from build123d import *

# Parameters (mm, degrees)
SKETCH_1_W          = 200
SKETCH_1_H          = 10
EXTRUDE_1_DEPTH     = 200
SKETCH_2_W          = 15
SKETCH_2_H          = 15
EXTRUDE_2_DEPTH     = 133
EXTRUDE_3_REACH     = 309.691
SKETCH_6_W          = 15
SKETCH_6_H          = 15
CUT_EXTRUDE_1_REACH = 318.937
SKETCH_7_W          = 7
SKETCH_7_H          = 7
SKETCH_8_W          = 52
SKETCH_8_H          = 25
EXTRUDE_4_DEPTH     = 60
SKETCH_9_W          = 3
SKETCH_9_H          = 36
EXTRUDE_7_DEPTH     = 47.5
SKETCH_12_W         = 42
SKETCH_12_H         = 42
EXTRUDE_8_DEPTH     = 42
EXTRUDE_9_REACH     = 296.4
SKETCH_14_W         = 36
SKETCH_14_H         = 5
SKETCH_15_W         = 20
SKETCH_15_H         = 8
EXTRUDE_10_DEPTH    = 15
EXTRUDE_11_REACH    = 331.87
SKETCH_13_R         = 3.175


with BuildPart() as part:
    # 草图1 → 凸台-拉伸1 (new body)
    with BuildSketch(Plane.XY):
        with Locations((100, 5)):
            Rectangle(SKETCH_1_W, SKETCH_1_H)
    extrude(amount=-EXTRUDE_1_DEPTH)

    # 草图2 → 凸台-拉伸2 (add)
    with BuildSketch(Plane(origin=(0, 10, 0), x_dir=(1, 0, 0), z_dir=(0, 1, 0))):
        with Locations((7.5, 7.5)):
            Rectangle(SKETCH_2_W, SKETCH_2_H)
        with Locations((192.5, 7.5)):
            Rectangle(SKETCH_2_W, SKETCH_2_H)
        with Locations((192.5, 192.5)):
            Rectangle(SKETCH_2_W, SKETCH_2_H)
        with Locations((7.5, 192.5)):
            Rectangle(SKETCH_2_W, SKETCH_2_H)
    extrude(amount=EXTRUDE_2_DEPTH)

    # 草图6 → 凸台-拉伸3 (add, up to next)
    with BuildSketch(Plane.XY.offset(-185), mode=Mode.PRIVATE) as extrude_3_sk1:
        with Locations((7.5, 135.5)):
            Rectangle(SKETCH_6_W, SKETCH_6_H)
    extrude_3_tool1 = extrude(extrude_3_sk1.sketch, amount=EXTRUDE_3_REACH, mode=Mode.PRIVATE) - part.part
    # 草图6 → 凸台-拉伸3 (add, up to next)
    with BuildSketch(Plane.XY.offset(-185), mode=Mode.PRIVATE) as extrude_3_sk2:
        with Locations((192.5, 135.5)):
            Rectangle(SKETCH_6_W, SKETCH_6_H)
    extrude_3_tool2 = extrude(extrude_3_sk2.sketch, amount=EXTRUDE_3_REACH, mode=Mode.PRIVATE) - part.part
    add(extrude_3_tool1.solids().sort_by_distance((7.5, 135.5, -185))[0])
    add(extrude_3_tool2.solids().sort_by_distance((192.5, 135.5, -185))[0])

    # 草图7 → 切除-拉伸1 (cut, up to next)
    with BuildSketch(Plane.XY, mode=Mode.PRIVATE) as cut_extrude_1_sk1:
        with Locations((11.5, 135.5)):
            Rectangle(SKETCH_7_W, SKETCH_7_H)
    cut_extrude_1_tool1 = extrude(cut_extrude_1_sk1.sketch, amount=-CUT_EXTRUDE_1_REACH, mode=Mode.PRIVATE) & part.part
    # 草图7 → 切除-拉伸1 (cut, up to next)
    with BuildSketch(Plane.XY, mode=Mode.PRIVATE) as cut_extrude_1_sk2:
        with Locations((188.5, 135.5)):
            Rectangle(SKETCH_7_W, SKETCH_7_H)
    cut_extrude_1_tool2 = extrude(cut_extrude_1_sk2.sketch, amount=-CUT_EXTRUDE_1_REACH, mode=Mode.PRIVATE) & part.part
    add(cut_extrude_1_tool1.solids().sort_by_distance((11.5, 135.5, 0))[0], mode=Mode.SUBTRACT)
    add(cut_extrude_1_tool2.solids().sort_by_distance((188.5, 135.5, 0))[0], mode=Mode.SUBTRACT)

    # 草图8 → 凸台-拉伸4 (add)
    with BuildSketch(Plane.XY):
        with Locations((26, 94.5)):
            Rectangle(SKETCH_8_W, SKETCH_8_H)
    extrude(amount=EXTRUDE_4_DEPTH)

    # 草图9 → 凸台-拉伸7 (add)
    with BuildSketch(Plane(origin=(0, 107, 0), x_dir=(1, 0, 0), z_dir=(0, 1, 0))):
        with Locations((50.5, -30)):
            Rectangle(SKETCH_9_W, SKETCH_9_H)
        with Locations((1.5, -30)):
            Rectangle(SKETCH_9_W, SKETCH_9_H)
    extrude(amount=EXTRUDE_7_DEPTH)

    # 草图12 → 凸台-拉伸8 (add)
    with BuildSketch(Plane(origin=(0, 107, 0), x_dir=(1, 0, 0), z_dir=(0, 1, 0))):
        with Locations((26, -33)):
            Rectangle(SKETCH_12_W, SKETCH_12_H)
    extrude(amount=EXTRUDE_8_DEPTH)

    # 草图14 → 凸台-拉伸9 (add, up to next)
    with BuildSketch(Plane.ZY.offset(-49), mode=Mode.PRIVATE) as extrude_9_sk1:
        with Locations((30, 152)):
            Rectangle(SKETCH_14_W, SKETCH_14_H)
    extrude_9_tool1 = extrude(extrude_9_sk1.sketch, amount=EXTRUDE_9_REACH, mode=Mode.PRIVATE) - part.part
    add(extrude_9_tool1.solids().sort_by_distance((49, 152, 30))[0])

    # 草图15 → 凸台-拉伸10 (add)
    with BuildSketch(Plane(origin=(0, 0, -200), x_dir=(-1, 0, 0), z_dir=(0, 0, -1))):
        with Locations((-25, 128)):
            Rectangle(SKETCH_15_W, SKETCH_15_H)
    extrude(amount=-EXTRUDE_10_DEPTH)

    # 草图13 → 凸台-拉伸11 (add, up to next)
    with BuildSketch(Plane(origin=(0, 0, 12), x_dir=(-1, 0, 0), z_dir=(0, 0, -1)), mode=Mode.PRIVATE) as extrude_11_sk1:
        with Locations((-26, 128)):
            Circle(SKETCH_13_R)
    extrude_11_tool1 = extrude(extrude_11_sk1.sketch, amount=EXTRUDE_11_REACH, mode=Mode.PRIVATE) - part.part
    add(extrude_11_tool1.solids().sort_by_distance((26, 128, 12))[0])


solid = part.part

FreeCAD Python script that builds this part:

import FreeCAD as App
import Part
import Sketcher
from FreeCAD import Vector

doc = App.newDocument("Part")
params = doc.addObject("Spreadsheet::Sheet", "Params")
for row, (alias, value) in enumerate([
    ("sketch1_width", "200 mm"),
    ("sketch1_height", "10 mm"),
    ("pad1_length", "200 mm"),
    ("sketch2_width", "15 mm"),
    ("pad2_length", "133 mm"),
    ("sketch3_width", "15 mm"),
    ("sketch4_width", "15 mm"),
    ("sketch5_width", "7 mm"),
    ("sketch6_width", "7 mm"),
    ("sketch7_width", "52 mm"),
    ("sketch7_height", "25 mm"),
    ("pad5_length", "60 mm"),
    ("sketch8_width", "3 mm"),
    ("sketch8_height", "36 mm"),
    ("pad6_length", "47.5 mm"),
    ("sketch9_width", "42 mm"),
    ("pad7_length", "42 mm"),
    ("sketch10_width", "5 mm"),
    ("sketch10_height", "36 mm"),
    ("sketch11_width", "20 mm"),
    ("sketch11_height", "8 mm"),
    ("pad9_length", "15 mm"),
    ("sketch12_diameter", "6.35 mm"),
], start=1):
    params.set(f"A{row}", alias)
    params.set(f"B{row}", "=" + value)
    params.setAlias(f"B{row}", alias)

body = doc.addObject("PartDesign::Body", "Body")

# Sketch on XY plane
sketch1 = body.newObject("Sketcher::SketchObject", "Sketch")
sketch1.AttachmentSupport = (doc.getObject("XY_Plane"), [""])
sketch1.MapMode = "FlatFace"
sketch1.addGeometry([
    Part.LineSegment(Vector(0, 10, 0), Vector(0, 0, 0)),
    Part.LineSegment(Vector(0, 0, 0), Vector(200, 0, 0)),
    Part.LineSegment(Vector(200, 0, 0), Vector(200, 10, 0)),
    Part.LineSegment(Vector(200, 10, 0), Vector(0, 10, 0)),
], False)
sketch1.addConstraint([
    Sketcher.Constraint("Coincident", 0, 2, 1, 1),
    Sketcher.Constraint("Coincident", 1, 2, 2, 1),
    Sketcher.Constraint("Coincident", 2, 2, 3, 1),
    Sketcher.Constraint("Coincident", 3, 2, 0, 1),
    Sketcher.Constraint("Vertical", 0),
    Sketcher.Constraint("Horizontal", 1),
    Sketcher.Constraint("Vertical", 2),
    Sketcher.Constraint("Horizontal", 3),
    Sketcher.Constraint("Coincident", 0, 2, -1, 1),
    Sketcher.Constraint("DistanceX", 1, 1, 1, 2, 200.0),
    Sketcher.Constraint("DistanceY", 0, 2, 0, 1, 10.0),
])
sketch1.setExpression("Constraints[9]", "Params.sketch1_width")
sketch1.setExpression("Constraints[10]", "Params.sketch1_height")
pad1 = body.newObject("PartDesign::Pad", "Pad")
pad1.Profile = sketch1
pad1.setExpression("Length", "Params.pad1_length")
pad1.Reversed = True

# Sketch on XZ plane
sketch2 = body.newObject("Sketcher::SketchObject", "Sketch001")
sketch2.AttachmentSupport = (doc.getObject("XZ_Plane"), [""])
sketch2.MapMode = "FlatFace"
sketch2.AttachmentOffset = App.Placement(Vector(0, 0, -10), App.Rotation())
sketch2.addGeometry([
    Part.LineSegment(Vector(0, -15, 0), Vector(0, 0, 0)),  # 0
    Part.LineSegment(Vector(0, 0, 0), Vector(15, 0, 0)),  # 1
    Part.LineSegment(Vector(15, 0, 0), Vector(15, -15, 0)),  # 2
    Part.LineSegment(Vector(15, -15, 0), Vector(0, -15, 0)),  # 3
    Part.LineSegment(Vector(185, -15, 0), Vector(185, 0, 0)),  # 4
    Part.LineSegment(Vector(185, 0, 0), Vector(200, 0, 0)),  # 5
    Part.LineSegment(Vector(200, 0, 0), Vector(200, -15, 0)),  # 6
    Part.LineSegment(Vector(200, -15, 0), Vector(185, -15, 0)),  # 7
    Part.LineSegment(Vector(185, -200, 0), Vector(185, -185, 0)),  # 8
    Part.LineSegment(Vector(185, -185, 0), Vector(200, -185, 0)),  # 9
    Part.LineSegment(Vector(200, -185, 0), Vector(200, -200, 0)),  # 10
    Part.LineSegment(Vector(200, -200, 0), Vector(185, -200, 0)),  # 11
    Part.LineSegment(Vector(0, -200, 0), Vector(0, -185, 0)),  # 12
    Part.LineSegment(Vector(0, -185, 0), Vector(15, -185, 0)),  # 13
    Part.LineSegment(Vector(15, -185, 0), Vector(15, -200, 0)),  # 14
    Part.LineSegment(Vector(15, -200, 0), Vector(0, -200, 0)),  # 15
], False)
sketch2.addConstraint([
    Sketcher.Constraint("Coincident", 0, 2, 1, 1),
    Sketcher.Constraint("Coincident", 1, 2, 2, 1),
    Sketcher.Constraint("Coincident", 2, 2, 3, 1),
    Sketcher.Constraint("Coincident", 3, 2, 0, 1),
    Sketcher.Constraint("Coincident", 4, 2, 5, 1),
    Sketcher.Constraint("Coincident", 5, 2, 6, 1),
    Sketcher.Constraint("Coincident", 6, 2, 7, 1),
    Sketcher.Constraint("Coincident", 7, 2, 4, 1),
    Sketcher.Constraint("Coincident", 8, 2, 9, 1),
    Sketcher.Constraint("Coincident", 9, 2, 10, 1),
    Sketcher.Constraint("Coincident", 10, 2, 11, 1),
    Sketcher.Constraint("Coincident", 11, 2, 8, 1),
    Sketcher.Constraint("Coincident", 12, 2, 13, 1),
    Sketcher.Constraint("Coincident", 13, 2, 14, 1),
    Sketcher.Constraint("Coincident", 14, 2, 15, 1),
    Sketcher.Constraint("Coincident", 15, 2, 12, 1),
    Sketcher.Constraint("Vertical", 0),
    Sketcher.Constraint("Horizontal", 1),
    Sketcher.Constraint("Vertical", 2),
    Sketcher.Constraint("Horizontal", 3),
    Sketcher.Constraint("Vertical", 4),
    Sketcher.Constraint("Horizontal", 5),
    Sketcher.Constraint("Vertical", 6),
    Sketcher.Constraint("Horizontal", 7),
    Sketcher.Constraint("Vertical", 8),
    Sketcher.Constraint("Horizontal", 9),
    Sketcher.Constraint("Vertical", 10),
    Sketcher.Constraint("Horizontal", 11),
    Sketcher.Constraint("Vertical", 12),
    Sketcher.Constraint("Horizontal", 13),
    Sketcher.Constraint("Vertical", 14),
    Sketcher.Constraint("Horizontal", 15),
    Sketcher.Constraint("Coincident", 0, 2, -1, 1),
    Sketcher.Constraint("PointOnObject", 4, 2, -1),
    Sketcher.Constraint("PointOnObject", 12, 2, -2),
    Sketcher.Constraint("Horizontal", 3, 2, 6, 2),
    Sketcher.Constraint("Horizontal", 9, 2, 12, 2),
    Sketcher.Constraint("Horizontal", 11, 2, 14, 2),
    Sketcher.Constraint("Vertical", 7, 2, 8, 2),
    Sketcher.Constraint("Vertical", 6, 2, 9, 2),
    Sketcher.Constraint("Vertical", 2, 2, 13, 2),
    Sketcher.Constraint("Equal", 3, 5),
    Sketcher.Constraint("Equal", 15, 0),
    Sketcher.Constraint("Equal", 6, 8),
    Sketcher.Constraint("DistanceX", 1, 1, 1, 2, 15.0),
    Sketcher.Constraint("DistanceX", -1, 1, 4, 2, 185.0),
    Sketcher.Constraint("DistanceY", 8, 2, -1, 1, 185.0),
])
sketch2.setExpression("Constraints[44]", "Params.sketch2_width")
pad2 = body.newObject("PartDesign::Pad", "Pad001")
pad2.Profile = sketch2
pad2.setExpression("Length", "Params.pad2_length")
pad2.Reversed = True

# Sketch on XY plane
sketch3 = body.newObject("Sketcher::SketchObject", "Sketch002")
sketch3.AttachmentSupport = (doc.getObject("XY_Plane"), [""])
sketch3.MapMode = "FlatFace"
sketch3.AttachmentOffset = App.Placement(Vector(0, 0, -185), App.Rotation())
sketch3.addGeometry([
    Part.LineSegment(Vector(0, 143, 0), Vector(0, 128, 0)),
    Part.LineSegment(Vector(0, 128, 0), Vector(15, 128, 0)),
    Part.LineSegment(Vector(15, 128, 0), Vector(15, 143, 0)),
    Part.LineSegment(Vector(15, 143, 0), Vector(0, 143, 0)),
], False)
sketch3.addConstraint([
    Sketcher.Constraint("Coincident", 0, 2, 1, 1),
    Sketcher.Constraint("Coincident", 1, 2, 2, 1),
    Sketcher.Constraint("Coincident", 2, 2, 3, 1),
    Sketcher.Constraint("Coincident", 3, 2, 0, 1),
    Sketcher.Constraint("Vertical", 0),
    Sketcher.Constraint("Horizontal", 1),
    Sketcher.Constraint("Vertical", 2),
    Sketcher.Constraint("Horizontal", 3),
    Sketcher.Constraint("PointOnObject", 0, 2, -2),
    Sketcher.Constraint("Equal", 3, 0),
    Sketcher.Constraint("DistanceX", 1, 1, 1, 2, 15.0),
    Sketcher.Constraint("DistanceY", -1, 1, 0, 2, 128.0),
])
sketch3.setExpression("Constraints[10]", "Params.sketch3_width")
pad3 = body.newObject("PartDesign::Pad", "Pad002")
pad3.Profile = sketch3
pad3.Type = "UpToFirst"

# Sketch on XY plane
sketch4 = body.newObject("Sketcher::SketchObject", "Sketch003")
sketch4.AttachmentSupport = (doc.getObject("XY_Plane"), [""])
sketch4.MapMode = "FlatFace"
sketch4.AttachmentOffset = App.Placement(Vector(0, 0, -185), App.Rotation())
sketch4.addGeometry([
    Part.LineSegment(Vector(185, 143, 0), Vector(185, 128, 0)),
    Part.LineSegment(Vector(185, 128, 0), Vector(200, 128, 0)),
    Part.LineSegment(Vector(200, 128, 0), Vector(200, 143, 0)),
    Part.LineSegment(Vector(200, 143, 0), Vector(185, 143, 0)),
], False)
sketch4.addConstraint([
    Sketcher.Constraint("Coincident", 0, 2, 1, 1),
    Sketcher.Constraint("Coincident", 1, 2, 2, 1),
    Sketcher.Constraint("Coincident", 2, 2, 3, 1),
    Sketcher.Constraint("Coincident", 3, 2, 0, 1),
    Sketcher.Constraint("Vertical", 0),
    Sketcher.Constraint("Horizontal", 1),
    Sketcher.Constraint("Vertical", 2),
    Sketcher.Constraint("Horizontal", 3),
    Sketcher.Constraint("Equal", 3, 0),
    Sketcher.Constraint("DistanceX", 1, 1, 1, 2, 15.0),
    Sketcher.Constraint("DistanceX", -1, 1, 0, 2, 185.0),
    Sketcher.Constraint("DistanceY", -1, 1, 0, 2, 128.0),
])
sketch4.setExpression("Constraints[9]", "Params.sketch4_width")
pad4 = body.newObject("PartDesign::Pad", "Pad003")
pad4.Profile = sketch4
pad4.Type = "UpToFirst"

# Sketch on XY plane
sketch5 = body.newObject("Sketcher::SketchObject", "Sketch004")
sketch5.AttachmentSupport = (doc.getObject("XY_Plane"), [""])
sketch5.MapMode = "FlatFace"
sketch5.addGeometry([
    Part.LineSegment(Vector(8, 139, 0), Vector(8, 132, 0)),
    Part.LineSegment(Vector(8, 132, 0), Vector(15, 132, 0)),
    Part.LineSegment(Vector(15, 132, 0), Vector(15, 139, 0)),
    Part.LineSegment(Vector(15, 139, 0), Vector(8, 139, 0)),
], False)
sketch5.addConstraint([
    Sketcher.Constraint("Coincident", 0, 2, 1, 1),
    Sketcher.Constraint("Coincident", 1, 2, 2, 1),
    Sketcher.Constraint("Coincident", 2, 2, 3, 1),
    Sketcher.Constraint("Coincident", 3, 2, 0, 1),
    Sketcher.Constraint("Vertical", 0),
    Sketcher.Constraint("Horizontal", 1),
    Sketcher.Constraint("Vertical", 2),
    Sketcher.Constraint("Horizontal", 3),
    Sketcher.Constraint("Equal", 3, 0),
    Sketcher.Constraint("DistanceX", 1, 1, 1, 2, 7.0),
    Sketcher.Constraint("DistanceX", -1, 1, 0, 2, 8.0),
    Sketcher.Constraint("DistanceY", -1, 1, 0, 2, 132.0),
])
sketch5.setExpression("Constraints[9]", "Params.sketch5_width")
pocket1 = body.newObject("PartDesign::Pocket", "Pocket")
pocket1.Profile = sketch5
pocket1.Type = "UpToFirst"

# Sketch on XY plane
sketch6 = body.newObject("Sketcher::SketchObject", "Sketch005")
sketch6.AttachmentSupport = (doc.getObject("XY_Plane"), [""])
sketch6.MapMode = "FlatFace"
sketch6.addGeometry([
    Part.LineSegment(Vector(185, 139, 0), Vector(185, 132, 0)),
    Part.LineSegment(Vector(185, 132, 0), Vector(192, 132, 0)),
    Part.LineSegment(Vector(192, 132, 0), Vector(192, 139, 0)),
    Part.LineSegment(Vector(192, 139, 0), Vector(185, 139, 0)),
], False)
sketch6.addConstraint([
    Sketcher.Constraint("Coincident", 0, 2, 1, 1),
    Sketcher.Constraint("Coincident", 1, 2, 2, 1),
    Sketcher.Constraint("Coincident", 2, 2, 3, 1),
    Sketcher.Constraint("Coincident", 3, 2, 0, 1),
    Sketcher.Constraint("Vertical", 0),
    Sketcher.Constraint("Horizontal", 1),
    Sketcher.Constraint("Vertical", 2),
    Sketcher.Constraint("Horizontal", 3),
    Sketcher.Constraint("Equal", 3, 0),
    Sketcher.Constraint("DistanceX", 1, 1, 1, 2, 7.0),
    Sketcher.Constraint("DistanceX", -1, 1, 0, 2, 185.0),
    Sketcher.Constraint("DistanceY", -1, 1, 0, 2, 132.0),
])
sketch6.setExpression("Constraints[9]", "Params.sketch6_width")
pocket2 = body.newObject("PartDesign::Pocket", "Pocket001")
pocket2.Profile = sketch6
pocket2.Type = "UpToFirst"

# Sketch on XY plane
sketch7 = body.newObject("Sketcher::SketchObject", "Sketch006")
sketch7.AttachmentSupport = (doc.getObject("XY_Plane"), [""])
sketch7.MapMode = "FlatFace"
sketch7.addGeometry([
    Part.LineSegment(Vector(0, 107, 0), Vector(0, 82, 0)),
    Part.LineSegment(Vector(0, 82, 0), Vector(52, 82, 0)),
    Part.LineSegment(Vector(52, 82, 0), Vector(52, 107, 0)),
    Part.LineSegment(Vector(52, 107, 0), Vector(0, 107, 0)),
], False)
sketch7.addConstraint([
    Sketcher.Constraint("Coincident", 0, 2, 1, 1),
    Sketcher.Constraint("Coincident", 1, 2, 2, 1),
    Sketcher.Constraint("Coincident", 2, 2, 3, 1),
    Sketcher.Constraint("Coincident", 3, 2, 0, 1),
    Sketcher.Constraint("Vertical", 0),
    Sketcher.Constraint("Horizontal", 1),
    Sketcher.Constraint("Vertical", 2),
    Sketcher.Constraint("Horizontal", 3),
    Sketcher.Constraint("PointOnObject", 0, 2, -2),
    Sketcher.Constraint("DistanceX", 1, 1, 1, 2, 52.0),
    Sketcher.Constraint("DistanceY", 0, 2, 0, 1, 25.0),
    Sketcher.Constraint("DistanceY", -1, 1, 0, 2, 82.0),
])
sketch7.setExpression("Constraints[9]", "Params.sketch7_width")
sketch7.setExpression("Constraints[10]", "Params.sketch7_height")
pad5 = body.newObject("PartDesign::Pad", "Pad004")
pad5.Profile = sketch7
pad5.setExpression("Length", "Params.pad5_length")

# Sketch on XZ plane
sketch8 = body.newObject("Sketcher::SketchObject", "Sketch007")
sketch8.AttachmentSupport = (doc.getObject("XZ_Plane"), [""])
sketch8.MapMode = "FlatFace"
sketch8.AttachmentOffset = App.Placement(Vector(0, 0, -107), App.Rotation())
sketch8.addGeometry([
    Part.LineSegment(Vector(49, 12, 0), Vector(49, 48, 0)),  # 0
    Part.LineSegment(Vector(49, 48, 0), Vector(52, 48, 0)),  # 1
    Part.LineSegment(Vector(52, 48, 0), Vector(52, 12, 0)),  # 2
    Part.LineSegment(Vector(52, 12, 0), Vector(49, 12, 0)),  # 3
    Part.LineSegment(Vector(0, 12, 0), Vector(0, 48, 0)),  # 4
    Part.LineSegment(Vector(0, 48, 0), Vector(3, 48, 0)),  # 5
    Part.LineSegment(Vector(3, 48, 0), Vector(3, 12, 0)),  # 6
    Part.LineSegment(Vector(3, 12, 0), Vector(0, 12, 0)),  # 7
], False)
sketch8.addConstraint([
    Sketcher.Constraint("Coincident", 0, 2, 1, 1),
    Sketcher.Constraint("Coincident", 1, 2, 2, 1),
    Sketcher.Constraint("Coincident", 2, 2, 3, 1),
    Sketcher.Constraint("Coincident", 3, 2, 0, 1),
    Sketcher.Constraint("Coincident", 4, 2, 5, 1),
    Sketcher.Constraint("Coincident", 5, 2, 6, 1),
    Sketcher.Constraint("Coincident", 6, 2, 7, 1),
    Sketcher.Constraint("Coincident", 7, 2, 4, 1),
    Sketcher.Constraint("Vertical", 0),
    Sketcher.Constraint("Horizontal", 1),
    Sketcher.Constraint("Vertical", 2),
    Sketcher.Constraint("Horizontal", 3),
    Sketcher.Constraint("Vertical", 4),
    Sketcher.Constraint("Horizontal", 5),
    Sketcher.Constraint("Vertical", 6),
    Sketcher.Constraint("Horizontal", 7),
    Sketcher.Constraint("PointOnObject", 4, 2, -2),
    Sketcher.Constraint("Horizontal", 1, 2, 4, 2),
    Sketcher.Constraint("Horizontal", 3, 2, 6, 2),
    Sketcher.Constraint("Equal", 3, 5),
    Sketcher.Constraint("DistanceX", 1, 1, 1, 2, 3.0),
    Sketcher.Constraint("DistanceY", 0, 1, 0, 2, 36.0),
    Sketcher.Constraint("DistanceX", -1, 1, 0, 2, 49.0),
    Sketcher.Constraint("DistanceY", -1, 1, 0, 2, 48.0),
])
sketch8.setExpression("Constraints[20]", "Params.sketch8_width")
sketch8.setExpression("Constraints[21]", "Params.sketch8_height")
pad6 = body.newObject("PartDesign::Pad", "Pad005")
pad6.Profile = sketch8
pad6.setExpression("Length", "Params.pad6_length")
pad6.Reversed = True

# Sketch on XZ plane
sketch9 = body.newObject("Sketcher::SketchObject", "Sketch008")
sketch9.AttachmentSupport = (doc.getObject("XZ_Plane"), [""])
sketch9.MapMode = "FlatFace"
sketch9.AttachmentOffset = App.Placement(Vector(0, 0, -107), App.Rotation())
sketch9.addGeometry([
    Part.LineSegment(Vector(5, 12, 0), Vector(5, 54, 0)),
    Part.LineSegment(Vector(5, 54, 0), Vector(47, 54, 0)),
    Part.LineSegment(Vector(47, 54, 0), Vector(47, 12, 0)),
    Part.LineSegment(Vector(47, 12, 0), Vector(5, 12, 0)),
], False)
sketch9.addConstraint([
    Sketcher.Constraint("Coincident", 0, 2, 1, 1),
    Sketcher.Constraint("Coincident", 1, 2, 2, 1),
    Sketcher.Constraint("Coincident", 2, 2, 3, 1),
    Sketcher.Constraint("Coincident", 3, 2, 0, 1),
    Sketcher.Constraint("Vertical", 0),
    Sketcher.Constraint("Horizontal", 1),
    Sketcher.Constraint("Vertical", 2),
    Sketcher.Constraint("Horizontal", 3),
    Sketcher.Constraint("Equal", 3, 0),
    Sketcher.Constraint("DistanceX", 1, 1, 1, 2, 42.0),
    Sketcher.Constraint("DistanceX", -1, 1, 0, 2, 5.0),
    Sketcher.Constraint("DistanceY", -1, 1, 0, 2, 54.0),
])
sketch9.setExpression("Constraints[9]", "Params.sketch9_width")
pad7 = body.newObject("PartDesign::Pad", "Pad006")
pad7.Profile = sketch9
pad7.setExpression("Length", "Params.pad7_length")
pad7.Reversed = True

# Sketch on YZ plane
sketch10 = body.newObject("Sketcher::SketchObject", "Sketch009")
sketch10.AttachmentSupport = (doc.getObject("YZ_Plane"), [""])
sketch10.MapMode = "FlatFace"
sketch10.AttachmentOffset = App.Placement(Vector(0, 0, 49), App.Rotation())
sketch10.addGeometry([
    Part.LineSegment(Vector(154, 12, 0), Vector(150, 12, 0)),
    Part.LineSegment(Vector(150, 12, 0), Vector(150, 48, 0)),
    Part.LineSegment(Vector(150, 48, 0), Vector(154, 48, 0)),
    Part.LineSegment(Vector(154, 48, 0), Vector(154, 12, 0)),
], False)
sketch10.addConstraint([
    Sketcher.Constraint("Coincident", 0, 2, 1, 1),
    Sketcher.Constraint("Coincident", 1, 2, 2, 1),
    Sketcher.Constraint("Coincident", 2, 2, 3, 1),
    Sketcher.Constraint("Coincident", 3, 2, 0, 1),
    Sketcher.Constraint("Horizontal", 0),
    Sketcher.Constraint("Vertical", 1),
    Sketcher.Constraint("Horizontal", 2),
    Sketcher.Constraint("Vertical", 3),
    Sketcher.Constraint("DistanceX", 0, 2, 0, 1, 5.0),
    Sketcher.Constraint("DistanceY", 1, 1, 1, 2, 36.0),
    Sketcher.Constraint("DistanceY", -1, 1, 0, 2, 12.0),
    Sketcher.Constraint("DistanceX", -1, 1, 0, 2, 149.5),
])
sketch10.setExpression("Constraints[8]", "Params.sketch10_width")
sketch10.setExpression("Constraints[9]", "Params.sketch10_height")
pad8 = body.newObject("PartDesign::Pad", "Pad007")
pad8.Profile = sketch10
pad8.Type = "UpToFirst"
pad8.Reversed = True

# Sketch on XY plane
sketch11 = body.newObject("Sketcher::SketchObject", "Sketch010")
sketch11.AttachmentSupport = (doc.getObject("XY_Plane"), [""])
sketch11.MapMode = "FlatFace"
sketch11.AttachmentOffset = App.Placement(Vector(0, 0, -200), App.Rotation())
sketch11.addGeometry([
    Part.LineSegment(Vector(35, 132, 0), Vector(35, 124, 0)),
    Part.LineSegment(Vector(35, 124, 0), Vector(15, 124, 0)),
    Part.LineSegment(Vector(15, 124, 0), Vector(15, 132, 0)),
    Part.LineSegment(Vector(15, 132, 0), Vector(35, 132, 0)),
], False)
sketch11.addConstraint([
    Sketcher.Constraint("Coincident", 0, 2, 1, 1),
    Sketcher.Constraint("Coincident", 1, 2, 2, 1),
    Sketcher.Constraint("Coincident", 2, 2, 3, 1),
    Sketcher.Constraint("Coincident", 3, 2, 0, 1),
    Sketcher.Constraint("Vertical", 0),
    Sketcher.Constraint("Horizontal", 1),
    Sketcher.Constraint("Vertical", 2),
    Sketcher.Constraint("Horizontal", 3),
    Sketcher.Constraint("DistanceX", 1, 2, 1, 1, 20.0),
    Sketcher.Constraint("DistanceY", 0, 2, 0, 1, 8.0),
    Sketcher.Constraint("DistanceX", -1, 1, 0, 2, 35.0),
    Sketcher.Constraint("DistanceY", -1, 1, 0, 2, 124.0),
])
sketch11.setExpression("Constraints[8]", "Params.sketch11_width")
sketch11.setExpression("Constraints[9]", "Params.sketch11_height")
pad9 = body.newObject("PartDesign::Pad", "Pad008")
pad9.Profile = sketch11
pad9.setExpression("Length", "Params.pad9_length")

# Sketch on XY plane
sketch12 = body.newObject("Sketcher::SketchObject", "Sketch011")
sketch12.AttachmentSupport = (doc.getObject("XY_Plane"), [""])
sketch12.MapMode = "FlatFace"
sketch12.AttachmentOffset = App.Placement(Vector(0, 0, 12), App.Rotation())
sketch12.addGeometry(Part.Circle(Vector(26, 128, 0), Vector(0, 0, 1), 3.2), False)
sketch12.addConstraint([
    Sketcher.Constraint("Diameter", 0, 6.35),
    Sketcher.Constraint("DistanceX", -1, 1, 0, 3, 26.0),
    Sketcher.Constraint("DistanceY", -1, 1, 0, 3, 128.0),
])
sketch12.setExpression("Constraints[0]", "Params.sketch12_diameter")
pad10 = body.newObject("PartDesign::Pad", "Pad009")
pad10.Profile = sketch12
pad10.Type = "UpToFirst"
pad10.Reversed = True

doc.recompute()
